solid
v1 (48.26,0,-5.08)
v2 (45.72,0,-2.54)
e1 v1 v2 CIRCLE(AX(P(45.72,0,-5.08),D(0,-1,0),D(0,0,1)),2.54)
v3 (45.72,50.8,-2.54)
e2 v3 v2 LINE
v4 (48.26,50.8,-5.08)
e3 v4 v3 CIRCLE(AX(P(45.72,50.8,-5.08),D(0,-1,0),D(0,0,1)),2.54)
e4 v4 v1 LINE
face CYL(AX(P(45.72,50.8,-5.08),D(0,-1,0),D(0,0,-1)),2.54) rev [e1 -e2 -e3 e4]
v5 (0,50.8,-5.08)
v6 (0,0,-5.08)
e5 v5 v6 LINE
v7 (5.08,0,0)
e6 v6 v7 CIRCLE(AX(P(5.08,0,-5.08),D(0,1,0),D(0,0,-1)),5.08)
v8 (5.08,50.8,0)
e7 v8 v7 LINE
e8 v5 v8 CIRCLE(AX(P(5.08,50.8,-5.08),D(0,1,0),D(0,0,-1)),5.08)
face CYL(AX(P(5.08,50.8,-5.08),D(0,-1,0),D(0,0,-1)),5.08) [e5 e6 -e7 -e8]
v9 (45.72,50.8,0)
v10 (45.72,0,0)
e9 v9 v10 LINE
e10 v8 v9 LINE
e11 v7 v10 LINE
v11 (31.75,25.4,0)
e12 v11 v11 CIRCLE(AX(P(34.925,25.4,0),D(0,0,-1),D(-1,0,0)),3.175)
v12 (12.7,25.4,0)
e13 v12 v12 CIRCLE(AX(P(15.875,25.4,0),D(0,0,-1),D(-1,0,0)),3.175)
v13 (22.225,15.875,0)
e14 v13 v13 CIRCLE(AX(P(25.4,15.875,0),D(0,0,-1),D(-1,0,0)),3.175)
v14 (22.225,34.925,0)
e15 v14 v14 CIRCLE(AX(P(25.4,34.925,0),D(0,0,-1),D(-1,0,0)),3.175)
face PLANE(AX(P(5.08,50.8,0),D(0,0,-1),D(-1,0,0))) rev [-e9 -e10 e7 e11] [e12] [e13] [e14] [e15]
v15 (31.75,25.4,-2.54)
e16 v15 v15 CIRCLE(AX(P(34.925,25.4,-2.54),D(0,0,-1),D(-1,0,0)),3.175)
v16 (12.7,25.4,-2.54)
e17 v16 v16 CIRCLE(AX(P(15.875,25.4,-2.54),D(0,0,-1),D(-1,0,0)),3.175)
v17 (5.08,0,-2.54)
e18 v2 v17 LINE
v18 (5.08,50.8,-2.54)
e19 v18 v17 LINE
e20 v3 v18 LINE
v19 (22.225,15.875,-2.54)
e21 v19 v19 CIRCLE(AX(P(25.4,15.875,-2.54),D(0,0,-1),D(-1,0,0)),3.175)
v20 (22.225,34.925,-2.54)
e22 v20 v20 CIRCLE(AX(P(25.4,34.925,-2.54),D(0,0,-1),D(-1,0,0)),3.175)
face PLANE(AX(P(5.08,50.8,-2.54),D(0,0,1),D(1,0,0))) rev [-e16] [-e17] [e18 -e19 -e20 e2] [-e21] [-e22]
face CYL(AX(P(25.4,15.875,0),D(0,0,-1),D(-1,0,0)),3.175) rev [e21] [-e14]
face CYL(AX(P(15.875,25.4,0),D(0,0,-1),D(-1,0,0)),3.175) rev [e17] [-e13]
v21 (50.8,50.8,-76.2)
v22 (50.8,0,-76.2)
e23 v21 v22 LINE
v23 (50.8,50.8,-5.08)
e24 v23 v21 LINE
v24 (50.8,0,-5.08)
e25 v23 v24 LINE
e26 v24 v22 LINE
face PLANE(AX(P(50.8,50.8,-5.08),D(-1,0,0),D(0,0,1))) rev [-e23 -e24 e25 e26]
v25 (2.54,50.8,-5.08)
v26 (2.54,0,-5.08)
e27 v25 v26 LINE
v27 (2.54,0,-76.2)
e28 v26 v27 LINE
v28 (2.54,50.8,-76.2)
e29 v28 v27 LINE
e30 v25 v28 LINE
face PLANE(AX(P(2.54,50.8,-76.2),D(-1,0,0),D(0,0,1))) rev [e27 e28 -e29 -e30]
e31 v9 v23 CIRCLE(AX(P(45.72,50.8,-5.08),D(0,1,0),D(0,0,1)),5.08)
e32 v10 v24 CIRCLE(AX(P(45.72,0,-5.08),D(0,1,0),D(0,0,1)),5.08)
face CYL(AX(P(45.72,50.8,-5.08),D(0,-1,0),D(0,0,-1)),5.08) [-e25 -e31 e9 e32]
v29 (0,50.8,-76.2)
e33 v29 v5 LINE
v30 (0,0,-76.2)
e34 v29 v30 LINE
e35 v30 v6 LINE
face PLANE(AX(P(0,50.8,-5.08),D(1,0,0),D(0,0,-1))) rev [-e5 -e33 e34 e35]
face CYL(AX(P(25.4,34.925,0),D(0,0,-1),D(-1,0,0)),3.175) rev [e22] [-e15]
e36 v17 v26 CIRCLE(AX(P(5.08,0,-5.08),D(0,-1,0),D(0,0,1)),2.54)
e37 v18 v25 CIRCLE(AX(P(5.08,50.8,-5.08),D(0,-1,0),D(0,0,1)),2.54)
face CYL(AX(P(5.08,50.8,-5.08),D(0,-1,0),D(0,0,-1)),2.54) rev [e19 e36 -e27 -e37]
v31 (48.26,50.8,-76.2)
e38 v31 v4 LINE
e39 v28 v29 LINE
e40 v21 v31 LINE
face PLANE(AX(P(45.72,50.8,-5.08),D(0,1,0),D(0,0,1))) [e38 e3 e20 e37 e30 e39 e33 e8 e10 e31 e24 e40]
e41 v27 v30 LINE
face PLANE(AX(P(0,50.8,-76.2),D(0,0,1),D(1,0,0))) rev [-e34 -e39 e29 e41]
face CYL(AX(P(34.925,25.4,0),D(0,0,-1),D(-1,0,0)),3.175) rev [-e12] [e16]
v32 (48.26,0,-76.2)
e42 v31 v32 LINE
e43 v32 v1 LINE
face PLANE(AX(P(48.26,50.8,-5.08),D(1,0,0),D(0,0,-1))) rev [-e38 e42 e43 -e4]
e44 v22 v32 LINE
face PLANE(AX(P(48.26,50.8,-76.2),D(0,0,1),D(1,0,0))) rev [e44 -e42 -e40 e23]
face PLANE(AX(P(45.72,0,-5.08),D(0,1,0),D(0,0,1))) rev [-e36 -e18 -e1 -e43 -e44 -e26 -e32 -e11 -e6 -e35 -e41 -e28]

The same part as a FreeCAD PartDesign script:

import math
import FreeCAD as App
import Part
import Sketcher

V = App.Vector
Q = App.Units.Quantity

doc = App.newDocument("Part")
body = doc.addObject("PartDesign::Body", "Body")

# Sketch on XZ plane
sketch1 = body.newObject("Sketcher::SketchObject", "Sketch")
sketch1.AttachmentSupport = (doc.getObject("XZ_Plane"), [""])
sketch1.MapMode = "FlatFace"
sketch1.addGeometry(Part.LineSegment(V(2.5, -76.2, 0), V(0, -76.2, 0)), False)
sketch1.addGeometry(Part.LineSegment(V(0, -76.2, 0), V(0, -5.1, 0)), False)
sketch1.addGeometry(Part.ArcOfCircle(Part.Circle(V(5.1, -5.1, 0), V(0, 0, 1), 5.1), math.radians(90), math.radians(180)), False)
sketch1.addGeometry(Part.LineSegment(V(5.1, 0, 0), V(45.7, 0, 0)), False)
sketch1.addGeometry(Part.ArcOfCircle(Part.Circle(V(45.7, -5.1, 0), V(0, 0, 1), 5.1), math.radians(0), math.radians(90)), False)
sketch1.addGeometry(Part.LineSegment(V(50.8, -5.1, 0), V(50.8, -76.2, 0)), False)
sketch1.addGeometry(Part.LineSegment(V(50.8, -76.2, 0), V(48.3, -76.2, 0)), False)
sketch1.addGeometry(Part.LineSegment(V(48.3, -76.2, 0), V(48.3, -5.1, 0)), False)
sketch1.addGeometry(Part.ArcOfCircle(Part.Circle(V(45.7, -5.1, 0), V(0, 0, 1), 2.5), math.radians(0), math.radians(90)), False)
sketch1.addGeometry(Part.LineSegment(V(45.7, -2.5, 0), V(5.1, -2.5, 0)), False)
sketch1.addGeometry(Part.ArcOfCircle(Part.Circle(V(5.1, -5.1, 0), V(0, 0, 1), 2.5), math.radians(90), math.radians(180)), False)
sketch1.addGeometry(Part.LineSegment(V(2.5, -5.1, 0), V(2.5, -76.2, 0)), False)
sketch1.addConstraint(Sketcher.Constraint("Coincident", 0, 2, 1, 1))
sketch1.addConstraint(Sketcher.Constraint("Tangent", 1, 2, 2, 2))
sketch1.addConstraint(Sketcher.Constraint("Tangent", 2, 1, 3, 1))
sketch1.addConstraint(Sketcher.Constraint("Tangent", 3, 2, 4, 2))
sketch1.addConstraint(Sketcher.Constraint("Tangent", 4, 1, 5, 1))
sketch1.addConstraint(Sketcher.Constraint("Coincident", 5, 2, 6, 1))
sketch1.addConstraint(Sketcher.Constraint("Coincident", 6, 2, 7, 1))
sketch1.addConstraint(Sketcher.Constraint("Tangent", 7, 2, 8, 1))
sketch1.addConstraint(Sketcher.Constraint("Tangent", 8, 2, 9, 1))
sketch1.addConstraint(Sketcher.Constraint("Tangent", 9, 2, 10, 1))
sketch1.addConstraint(Sketcher.Constraint("Tangent", 10, 2, 11, 1))
sketch1.addConstraint(Sketcher.Constraint("Coincident", 11, 2, 0, 1))
sketch1.addConstraint(Sketcher.Constraint("Horizontal", 0))
sketch1.addConstraint(Sketcher.Constraint("Vertical", 1))
sketch1.addConstraint(Sketcher.Constraint("Horizontal", 3))
sketch1.addConstraint(Sketcher.Constraint("Vertical", 5))
sketch1.addConstraint(Sketcher.Constraint("Horizontal", 6))
sketch1.addConstraint(Sketcher.Constraint("Vertical", 7))
sketch1.addConstraint(Sketcher.Constraint("Horizontal", 9))
sketch1.addConstraint(Sketcher.Constraint("Vertical", 11))
sketch1.addConstraint(Sketcher.Constraint("Coincident", 8, 3, 4, 3))
sketch1.addConstraint(Sketcher.Constraint("Coincident", 10, 3, 2, 3))
sketch1.addConstraint(Sketcher.Constraint("Equal", 2, 4))
sketch1.addConstraint(Sketcher.Constraint("PointOnObject", 0, 2, -2))
sketch1.addConstraint(Sketcher.Constraint("PointOnObject", 2, 1, -1))
sketch1.addConstraint(Sketcher.Constraint("Horizontal", 0, 2, 5, 2))
sketch1.addConstraint(Sketcher.Constraint("Radius", 2, Q("0.2 in")))
sketch1.addConstraint(Sketcher.Constraint("Radius", 8, Q("0.1 in")))
sketch1.addConstraint(Sketcher.Constraint("DistanceX", 3, 1, 3, 2, Q("1.6 in")))
sketch1.addConstraint(Sketcher.Constraint("DistanceY", 1, 1, 1, 2, Q("2.8 in")))
pad1 = body.newObject("PartDesign::Pad", "Pad")
pad1.Profile = sketch1
pad1.Length = Q("2 in")
pad1.Reversed = True

# Sketch on XY plane
sketch2 = body.newObject("Sketcher::SketchObject", "Sketch001")
sketch2.AttachmentSupport = (doc.getObject("XY_Plane"), [""])
sketch2.MapMode = "FlatFace"
sketch2.AttachmentOffset = App.Placement(V(0, 0, -0.1 * 25.4), App.Rotation())
sketch2.addGeometry(Part.Circle(V(34.9, 25.4, 0), V(0, 0, 1), 3.2), False)
sketch2.addGeometry(Part.Circle(V(25.4, 34.9, 0), V(0, 0, 1), 3.2), False)
sketch2.addGeometry(Part.Circle(V(15.9, 25.4, 0), V(0, 0, 1), 3.2), False)
sketch2.addGeometry(Part.Circle(V(25.4, 15.9, 0), V(0, 0, 1), 3.2), False)
sketch2.addConstraint(Sketcher.Constraint("Equal", 0, 1))
sketch2.addConstraint(Sketcher.Constraint("Equal", 1, 2))
sketch2.addConstraint(Sketcher.Constraint("Equal", 2, 3))
sketch2.addConstraint(Sketcher.Constraint("Horizontal", 0, 3, 2, 3))
sketch2.addConstraint(Sketcher.Constraint("Vertical", 1, 3, 3, 3))
sketch2.addConstraint(Sketcher.Constraint("Diameter", 0, Q("0.25 in")))
sketch2.addConstraint(Sketcher.Constraint("DistanceY", -1, 1, 0, 3, Q("1 in")))
sketch2.addConstraint(Sketcher.Constraint("DistanceX", -1, 1, 1, 3, Q("1 in")))
sketch2.addConstraint(Sketcher.Constraint("DistanceX", 2, 3, 0, 3, Q("0.75 in")))
sketch2.addConstraint(Sketcher.Constraint("DistanceY", 3, 3, 1, 3, Q("0.75 in")))
sketch2.addConstraint(Sketcher.Constraint("DistanceX", -1, 1, 0, 3, Q("1.375 in")))
sketch2.addConstraint(Sketcher.Constraint("DistanceY", -1, 1, 1, 3, Q("1.375 in")))
pocket1 = body.newObject("PartDesign::Pocket", "Pocket")
pocket1.Profile = sketch2
pocket1.Type = "ThroughAll"
pocket1.Reversed = True

doc.recompute()
